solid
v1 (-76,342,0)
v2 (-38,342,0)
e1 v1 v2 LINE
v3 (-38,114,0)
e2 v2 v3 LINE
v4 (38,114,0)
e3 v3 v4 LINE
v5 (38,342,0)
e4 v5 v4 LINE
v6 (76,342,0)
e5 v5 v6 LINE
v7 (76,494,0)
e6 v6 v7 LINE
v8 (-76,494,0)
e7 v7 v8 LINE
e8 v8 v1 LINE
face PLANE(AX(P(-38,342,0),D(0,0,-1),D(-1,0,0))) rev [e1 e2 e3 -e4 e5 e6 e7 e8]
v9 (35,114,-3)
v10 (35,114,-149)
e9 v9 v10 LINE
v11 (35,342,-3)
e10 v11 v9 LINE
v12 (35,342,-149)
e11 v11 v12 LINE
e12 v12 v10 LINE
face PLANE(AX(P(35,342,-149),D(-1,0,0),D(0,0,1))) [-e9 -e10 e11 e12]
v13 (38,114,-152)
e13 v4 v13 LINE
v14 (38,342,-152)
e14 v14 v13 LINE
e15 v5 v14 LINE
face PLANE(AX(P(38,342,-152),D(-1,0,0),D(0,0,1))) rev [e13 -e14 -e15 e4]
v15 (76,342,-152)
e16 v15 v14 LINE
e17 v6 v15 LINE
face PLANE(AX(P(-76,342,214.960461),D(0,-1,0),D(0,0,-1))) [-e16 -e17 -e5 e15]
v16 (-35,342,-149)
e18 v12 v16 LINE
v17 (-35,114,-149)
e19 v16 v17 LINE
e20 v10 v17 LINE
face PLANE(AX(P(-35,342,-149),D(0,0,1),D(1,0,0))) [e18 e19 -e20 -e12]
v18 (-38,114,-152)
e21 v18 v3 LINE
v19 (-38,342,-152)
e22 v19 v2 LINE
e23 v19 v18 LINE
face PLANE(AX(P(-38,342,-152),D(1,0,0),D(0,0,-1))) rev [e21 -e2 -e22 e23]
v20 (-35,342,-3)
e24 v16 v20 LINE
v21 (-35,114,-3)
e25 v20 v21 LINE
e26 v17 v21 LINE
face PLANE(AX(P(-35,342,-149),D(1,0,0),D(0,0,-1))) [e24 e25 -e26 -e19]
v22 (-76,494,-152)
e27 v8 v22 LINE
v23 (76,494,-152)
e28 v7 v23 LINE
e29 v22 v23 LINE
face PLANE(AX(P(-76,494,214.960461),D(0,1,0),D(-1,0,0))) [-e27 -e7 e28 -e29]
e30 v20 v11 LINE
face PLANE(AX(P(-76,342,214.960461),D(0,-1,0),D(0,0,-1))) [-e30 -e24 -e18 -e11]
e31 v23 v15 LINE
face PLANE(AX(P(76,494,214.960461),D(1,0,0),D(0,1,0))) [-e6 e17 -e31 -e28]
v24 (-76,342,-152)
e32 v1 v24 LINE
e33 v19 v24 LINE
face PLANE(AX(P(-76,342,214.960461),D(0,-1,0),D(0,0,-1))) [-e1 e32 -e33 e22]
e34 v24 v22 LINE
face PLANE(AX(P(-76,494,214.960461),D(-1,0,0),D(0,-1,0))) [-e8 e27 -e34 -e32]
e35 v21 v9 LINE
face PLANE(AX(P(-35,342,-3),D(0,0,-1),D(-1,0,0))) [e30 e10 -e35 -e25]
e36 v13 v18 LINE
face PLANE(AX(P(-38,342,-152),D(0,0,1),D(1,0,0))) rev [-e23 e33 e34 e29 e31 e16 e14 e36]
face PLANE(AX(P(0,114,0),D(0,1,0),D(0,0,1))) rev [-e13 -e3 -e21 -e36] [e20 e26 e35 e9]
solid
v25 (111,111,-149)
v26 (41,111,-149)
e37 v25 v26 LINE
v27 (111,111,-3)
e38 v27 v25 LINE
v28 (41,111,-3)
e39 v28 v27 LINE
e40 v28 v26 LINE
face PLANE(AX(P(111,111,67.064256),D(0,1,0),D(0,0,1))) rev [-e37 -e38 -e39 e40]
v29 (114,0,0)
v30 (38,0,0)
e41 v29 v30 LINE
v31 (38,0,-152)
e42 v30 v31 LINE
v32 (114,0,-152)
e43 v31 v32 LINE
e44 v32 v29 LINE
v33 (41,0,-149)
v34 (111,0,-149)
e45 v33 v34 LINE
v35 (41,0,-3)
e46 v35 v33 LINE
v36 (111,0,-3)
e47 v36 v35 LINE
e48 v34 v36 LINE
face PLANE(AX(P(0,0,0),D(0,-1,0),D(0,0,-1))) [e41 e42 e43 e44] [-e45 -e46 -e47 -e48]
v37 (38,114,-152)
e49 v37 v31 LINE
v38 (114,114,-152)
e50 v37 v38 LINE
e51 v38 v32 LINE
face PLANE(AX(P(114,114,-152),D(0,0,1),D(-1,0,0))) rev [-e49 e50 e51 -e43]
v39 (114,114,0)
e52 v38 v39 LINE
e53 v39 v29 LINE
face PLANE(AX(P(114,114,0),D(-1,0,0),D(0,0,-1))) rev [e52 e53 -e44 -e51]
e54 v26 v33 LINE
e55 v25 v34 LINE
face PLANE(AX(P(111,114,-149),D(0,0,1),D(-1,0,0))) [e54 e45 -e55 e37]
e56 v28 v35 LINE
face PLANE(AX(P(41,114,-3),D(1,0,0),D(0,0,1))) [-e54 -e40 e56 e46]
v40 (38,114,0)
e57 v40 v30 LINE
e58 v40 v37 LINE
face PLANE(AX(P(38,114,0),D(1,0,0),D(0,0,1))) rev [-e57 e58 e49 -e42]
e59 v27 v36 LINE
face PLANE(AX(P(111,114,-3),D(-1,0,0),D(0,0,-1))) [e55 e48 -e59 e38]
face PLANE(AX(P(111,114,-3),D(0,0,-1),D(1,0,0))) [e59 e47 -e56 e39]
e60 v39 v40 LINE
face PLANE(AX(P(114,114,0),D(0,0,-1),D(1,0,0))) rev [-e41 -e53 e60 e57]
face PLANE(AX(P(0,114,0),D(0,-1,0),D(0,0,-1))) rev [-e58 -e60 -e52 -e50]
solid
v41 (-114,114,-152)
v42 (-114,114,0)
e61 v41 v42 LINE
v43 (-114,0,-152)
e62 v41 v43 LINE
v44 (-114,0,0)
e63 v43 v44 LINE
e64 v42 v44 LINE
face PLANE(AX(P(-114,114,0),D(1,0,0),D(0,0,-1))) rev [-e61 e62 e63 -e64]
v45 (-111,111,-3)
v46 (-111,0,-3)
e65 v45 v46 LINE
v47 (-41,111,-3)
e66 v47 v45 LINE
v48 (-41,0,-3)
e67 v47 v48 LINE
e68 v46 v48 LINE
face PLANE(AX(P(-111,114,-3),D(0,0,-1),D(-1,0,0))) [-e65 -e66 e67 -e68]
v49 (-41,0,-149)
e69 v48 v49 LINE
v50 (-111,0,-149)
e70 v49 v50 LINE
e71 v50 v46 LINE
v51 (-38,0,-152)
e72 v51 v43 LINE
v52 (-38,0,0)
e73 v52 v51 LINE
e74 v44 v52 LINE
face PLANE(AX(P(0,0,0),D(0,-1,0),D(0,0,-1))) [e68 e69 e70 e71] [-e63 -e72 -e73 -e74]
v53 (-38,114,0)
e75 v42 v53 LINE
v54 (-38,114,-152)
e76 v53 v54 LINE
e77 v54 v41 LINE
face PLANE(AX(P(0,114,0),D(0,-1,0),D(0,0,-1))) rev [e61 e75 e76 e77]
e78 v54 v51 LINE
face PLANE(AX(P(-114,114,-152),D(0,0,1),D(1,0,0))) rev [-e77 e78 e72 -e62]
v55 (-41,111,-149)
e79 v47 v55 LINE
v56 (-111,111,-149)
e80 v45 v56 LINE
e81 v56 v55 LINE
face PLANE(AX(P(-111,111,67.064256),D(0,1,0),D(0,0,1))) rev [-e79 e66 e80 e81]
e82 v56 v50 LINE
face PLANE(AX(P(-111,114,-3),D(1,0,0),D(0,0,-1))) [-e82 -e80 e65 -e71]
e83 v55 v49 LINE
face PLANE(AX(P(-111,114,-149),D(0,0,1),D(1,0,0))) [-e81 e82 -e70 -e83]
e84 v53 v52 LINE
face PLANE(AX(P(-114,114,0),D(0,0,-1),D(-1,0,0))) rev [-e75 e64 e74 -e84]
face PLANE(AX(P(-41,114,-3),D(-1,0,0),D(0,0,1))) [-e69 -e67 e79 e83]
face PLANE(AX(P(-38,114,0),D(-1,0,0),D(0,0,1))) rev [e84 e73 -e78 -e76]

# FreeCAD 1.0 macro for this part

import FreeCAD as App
import Part
import Sketcher

doc = App.newDocument("Part")
body = doc.addObject("PartDesign::Body", "Body")

# Sketch on XZ plane
sketch1 = body.newObject("Sketcher::SketchObject", "Sketch")
sketch1.AttachmentSupport = (doc.getObject("XZ_Plane"), [""])
sketch1.MapMode = "FlatFace"
sketch1.addGeometry(Part.LineSegment(App.Vector(-114, -152, 0), App.Vector(-114, 0, 0)), False)
sketch1.addGeometry(Part.LineSegment(App.Vector(-114, 0, 0), App.Vector(-38, 0, 0)), False)
sketch1.addGeometry(Part.LineSegment(App.Vector(-38, 0, 0), App.Vector(-38, -152, 0)), False)
sketch1.addGeometry(Part.LineSegment(App.Vector(-38, -152, 0), App.Vector(-114, -152, 0)), False)
sketch1.addGeometry(Part.LineSegment(App.Vector(-41, -3, 0), App.Vector(-111, -3, 0)), False)
sketch1.addGeometry(Part.LineSegment(App.Vector(-111, -3, 0), App.Vector(-111, -149, 0)), False)
sketch1.addGeometry(Part.LineSegment(App.Vector(-111, -149, 0), App.Vector(-41, -149, 0)), False)
sketch1.addGeometry(Part.LineSegment(App.Vector(-41, -149, 0), App.Vector(-41, -3, 0)), False)
sketch1.addConstraint(Sketcher.Constraint("Coincident", 0, 2, 1, 1))
sketch1.addConstraint(Sketcher.Constraint("Coincident", 1, 2, 2, 1))
sketch1.addConstraint(Sketcher.Constraint("Coincident", 2, 2, 3, 1))
sketch1.addConstraint(Sketcher.Constraint("Coincident", 3, 2, 0, 1))
sketch1.addConstraint(Sketcher.Constraint("Coincident", 4, 2, 5, 1))
sketch1.addConstraint(Sketcher.Constraint("Coincident", 5, 2, 6, 1))
sketch1.addConstraint(Sketcher.Constraint("Coincident", 6, 2, 7, 1))
sketch1.addConstraint(Sketcher.Constraint("Coincident", 7, 2, 4, 1))
sketch1.addConstraint(Sketcher.Constraint("Vertical", 0))
sketch1.addConstraint(Sketcher.Constraint("Horizontal", 1))
sketch1.addConstraint(Sketcher.Constraint("Vertical", 2))
sketch1.addConstraint(Sketcher.Constraint("Horizontal", 3))
sketch1.addConstraint(Sketcher.Constraint("Horizontal", 4))
sketch1.addConstraint(Sketcher.Constraint("Vertical", 5))
sketch1.addConstraint(Sketcher.Constraint("Horizontal", 6))
sketch1.addConstraint(Sketcher.Constraint("Vertical", 7))
sketch1.addConstraint(Sketcher.Constraint("PointOnObject", 0, 2, -1))
sketch1.addConstraint(Sketcher.Constraint("DistanceX", 1, 1, 1, 2, 76.0))
sketch1.addConstraint(Sketcher.Constraint("DistanceX", 4, 2, 4, 1, 70.0))
sketch1.addConstraint(Sketcher.Constraint("DistanceY", 0, 1, 0, 2, 152.0))
sketch1.addConstraint(Sketcher.Constraint("DistanceY", 5, 2, 5, 1, 146.0))
sketch1.addConstraint(Sketcher.Constraint("DistanceX", 0, 2, -1, 1, 114.0))
sketch1.addConstraint(Sketcher.Constraint("DistanceX", 4, 2, -1, 1, 111.0))
sketch1.addConstraint(Sketcher.Constraint("DistanceY", 4, 2, -1, 1, 3.0))
pad1 = body.newObject("PartDesign::Pad", "Pad")
pad1.Profile = sketch1
pad1.Length = 114
pad1.Reversed = True

# Sketch on XY plane
sketch2 = body.newObject("Sketcher::SketchObject", "Sketch001")
sketch2.AttachmentSupport = (doc.getObject("XY_Plane"), [""])
sketch2.MapMode = "FlatFace"
sketch2.AttachmentOffset = App.Placement(App.Vector(0, 0, -149), App.Rotation())
sketch2.addGeometry(Part.LineSegment(App.Vector(-111, 114, 0), App.Vector(-111, 111, 0)), False)
sketch2.addGeometry(Part.LineSegment(App.Vector(-111, 111, 0), App.Vector(-41, 111, 0)), False)
sketch2.addGeometry(Part.LineSegment(App.Vector(-41, 111, 0), App.Vector(-41, 114, 0)), False)
sketch2.addGeometry(Part.LineSegment(App.Vector(-41, 114, 0), App.Vector(-111, 114, 0)), False)
sketch2.addConstraint(Sketcher.Constraint("Coincident", 0, 2, 1, 1))
sketch2.addConstraint(Sketcher.Constraint("Coincident", 1, 2, 2, 1))
sketch2.addConstraint(Sketcher.Constraint("Coincident", 2, 2, 3, 1))
sketch2.addConstraint(Sketcher.Constraint("Coincident", 3, 2, 0, 1))
sketch2.addConstraint(Sketcher.Constraint("Vertical", 0))
sketch2.addConstraint(Sketcher.Constraint("Horizontal", 1))
sketch2.addConstraint(Sketcher.Constraint("Vertical", 2))
sketch2.addConstraint(Sketcher.Constraint("Horizontal", 3))
sketch2.addConstraint(Sketcher.Constraint("DistanceX", 1, 1, 1, 2, 70.0))
sketch2.addConstraint(Sketcher.Constraint("DistanceY", 0, 2, 0, 1, 3.0))
sketch2.addConstraint(Sketcher.Constraint("DistanceX", 0, 2, -1, 1, 111.0))
sketch2.addConstraint(Sketcher.Constraint("DistanceY", -1, 1, 0, 2, 111.0))
pad2 = body.newObject("PartDesign::Pad", "Pad001")
pad2.Profile = sketch2
pad2.Length = 146
body2 = doc.addObject("PartDesign::Body", "Body001")
doc.recompute()

mirroring = doc.addObject("Part::Mirroring", "Mirroring")
mirroring.Source = body
mirroring.Base = App.Vector(0, 0, 0)
mirroring.Normal = App.Vector(1, 0, 0)
body2.BaseFeature = mirroring
doc.recompute()
body3 = doc.addObject("PartDesign::Body", "Body002")

# Sketch on XZ plane
sketch3 = body3.newObject("Sketcher::SketchObject", "Sketch002")
sketch3.AttachmentSupport = (doc.getObject("XZ_Plane002"), [""])
sketch3.MapMode = "FlatFace"
sketch3.AttachmentOffset = App.Placement(App.Vector(0, 0, -114), App.Rotation())
sketch3.addGeometry(Part.LineSegment(App.Vector(-38, -152, 0), App.Vector(-38, 0, 0)), False)
sketch3.addGeometry(Part.LineSegment(App.Vector(-38, 0, 0), App.Vector(38, 0, 0)), False)
sketch3.addGeometry(Part.LineSegment(App.Vector(38, 0, 0), App.Vector(38, -152, 0)), False)
sketch3.addGeometry(Part.LineSegment(App.Vector(38, -152, 0), App.Vector(-38, -152, 0)), False)
sketch3.addGeometry(Part.LineSegment(App.Vector(35, -3, 0), App.Vector(-35, -3, 0)), False)
sketch3.addGeometry(Part.LineSegment(App.Vector(-35, -3, 0), App.Vector(-35, -149, 0)), False)
sketch3.addGeometry(Part.LineSegment(App.Vector(-35, -149, 0), App.Vector(35, -149, 0)), False)
sketch3.addGeometry(Part.LineSegment(App.Vector(35, -149, 0), App.Vector(35, -3, 0)), False)
sketch3.addConstraint(Sketcher.Constraint("Coincident", 0, 2, 1, 1))
sketch3.addConstraint(Sketcher.Constraint("Coincident", 1, 2, 2, 1))
sketch3.addConstraint(Sketcher.Constraint("Coincident", 2, 2, 3, 1))
sketch3.addConstraint(Sketcher.Constraint("Coincident", 3, 2, 0, 1))
sketch3.addConstraint(Sketcher.Constraint("Coincident", 4, 2, 5, 1))
sketch3.addConstraint(Sketcher.Constraint("Coincident", 5, 2, 6, 1))
sketch3.addConstraint(Sketcher.Constraint("Coincident", 6, 2, 7, 1))
sketch3.addConstraint(Sketcher.Constraint("Coincident", 7, 2, 4, 1))
sketch3.addConstraint(Sketcher.Constraint("Vertical", 0))
sketch3.addConstraint(Sketcher.Constraint("Horizontal", 1))
sketch3.addConstraint(Sketcher.Constraint("Vertical", 2))
sketch3.addConstraint(Sketcher.Constraint("Horizontal", 3))
sketch3.addConstraint(Sketcher.Constraint("Horizontal", 4))
sketch3.addConstraint(Sketcher.Constraint("Vertical", 5))
sketch3.addConstraint(Sketcher.Constraint("Horizontal", 6))
sketch3.addConstraint(Sketcher.Constraint("Vertical", 7))
sketch3.addConstraint(Sketcher.Constraint("Symmetric", 0, 2, 1, 2, -1, 1))
sketch3.addConstraint(Sketcher.Constraint("DistanceX", 1, 1, 1, 2, 76.0))
sketch3.addConstraint(Sketcher.Constraint("DistanceX", 4, 2, 4, 1, 70.0))
sketch3.addConstraint(Sketcher.Constraint("DistanceY", 0, 1, 0, 2, 152.0))
sketch3.addConstraint(Sketcher.Constraint("DistanceY", 5, 2, 5, 1, 146.0))
sketch3.addConstraint(Sketcher.Constraint("DistanceX", 4, 2, -1, 1, 35.0))
sketch3.addConstraint(Sketcher.Constraint("DistanceY", 4, 2, -1, 1, 3.0))
pad3 = body3.newObject("PartDesign::Pad", "Pad002")
pad3.Profile = sketch3
pad3.Length = 228
pad3.Reversed = True

# Sketch on XY plane
sketch4 = body3.newObject("Sketcher::SketchObject", "Sketch003")
sketch4.AttachmentSupport = (doc.getObject("XY_Plane002"), [""])
sketch4.MapMode = "FlatFace"
sketch4.AttachmentOffset = App.Placement(App.Vector(0, 0, -152), App.Rotation())
sketch4.addGeometry(Part.LineSegment(App.Vector(76, 494, 0), App.Vector(76, 342, 0)), False)
sketch4.addGeometry(Part.LineSegment(App.Vector(76, 342, 0), App.Vector(-76, 342, 0)), False)
sketch4.addGeometry(Part.LineSegment(App.Vector(-76, 342, 0), App.Vector(-76, 494, 0)), False)
sketch4.addGeometry(Part.LineSegment(App.Vector(-76, 494, 0), App.Vector(76, 494, 0)), False)
sketch4.addConstraint(Sketcher.Constraint("Coincident", 0, 2, 1, 1))
sketch4.addConstraint(Sketcher.Constraint("Coincident", 1, 2, 2, 1))
sketch4.addConstraint(Sketcher.Constraint("Coincident", 2, 2, 3, 1))
sketch4.addConstraint(Sketcher.Constraint("Coincident", 3, 2, 0, 1))
sketch4.addConstraint(Sketcher.Constraint("Vertical", 0))
sketch4.addConstraint(Sketcher.Constraint("Horizontal", 1))
sketch4.addConstraint(Sketcher.Constraint("Vertical", 2))
sketch4.addConstraint(Sketcher.Constraint("Horizontal", 3))
sketch4.addConstraint(Sketcher.Constraint("Equal", 3, 0))
sketch4.addConstraint(Sketcher.Constraint("DistanceX", 1, 2, 1, 1, 152.0))
sketch4.addConstraint(Sketcher.Constraint("DistanceX", -1, 1, 0, 2, 76.0))
sketch4.addConstraint(Sketcher.Constraint("DistanceY", -1, 1, 0, 2, 342.0))
pad4 = body3.newObject("PartDesign::Pad", "Pad003")
pad4.Profile = sketch4
pad4.Length = 152
mirroring.Visibility = False

doc.recompute()
